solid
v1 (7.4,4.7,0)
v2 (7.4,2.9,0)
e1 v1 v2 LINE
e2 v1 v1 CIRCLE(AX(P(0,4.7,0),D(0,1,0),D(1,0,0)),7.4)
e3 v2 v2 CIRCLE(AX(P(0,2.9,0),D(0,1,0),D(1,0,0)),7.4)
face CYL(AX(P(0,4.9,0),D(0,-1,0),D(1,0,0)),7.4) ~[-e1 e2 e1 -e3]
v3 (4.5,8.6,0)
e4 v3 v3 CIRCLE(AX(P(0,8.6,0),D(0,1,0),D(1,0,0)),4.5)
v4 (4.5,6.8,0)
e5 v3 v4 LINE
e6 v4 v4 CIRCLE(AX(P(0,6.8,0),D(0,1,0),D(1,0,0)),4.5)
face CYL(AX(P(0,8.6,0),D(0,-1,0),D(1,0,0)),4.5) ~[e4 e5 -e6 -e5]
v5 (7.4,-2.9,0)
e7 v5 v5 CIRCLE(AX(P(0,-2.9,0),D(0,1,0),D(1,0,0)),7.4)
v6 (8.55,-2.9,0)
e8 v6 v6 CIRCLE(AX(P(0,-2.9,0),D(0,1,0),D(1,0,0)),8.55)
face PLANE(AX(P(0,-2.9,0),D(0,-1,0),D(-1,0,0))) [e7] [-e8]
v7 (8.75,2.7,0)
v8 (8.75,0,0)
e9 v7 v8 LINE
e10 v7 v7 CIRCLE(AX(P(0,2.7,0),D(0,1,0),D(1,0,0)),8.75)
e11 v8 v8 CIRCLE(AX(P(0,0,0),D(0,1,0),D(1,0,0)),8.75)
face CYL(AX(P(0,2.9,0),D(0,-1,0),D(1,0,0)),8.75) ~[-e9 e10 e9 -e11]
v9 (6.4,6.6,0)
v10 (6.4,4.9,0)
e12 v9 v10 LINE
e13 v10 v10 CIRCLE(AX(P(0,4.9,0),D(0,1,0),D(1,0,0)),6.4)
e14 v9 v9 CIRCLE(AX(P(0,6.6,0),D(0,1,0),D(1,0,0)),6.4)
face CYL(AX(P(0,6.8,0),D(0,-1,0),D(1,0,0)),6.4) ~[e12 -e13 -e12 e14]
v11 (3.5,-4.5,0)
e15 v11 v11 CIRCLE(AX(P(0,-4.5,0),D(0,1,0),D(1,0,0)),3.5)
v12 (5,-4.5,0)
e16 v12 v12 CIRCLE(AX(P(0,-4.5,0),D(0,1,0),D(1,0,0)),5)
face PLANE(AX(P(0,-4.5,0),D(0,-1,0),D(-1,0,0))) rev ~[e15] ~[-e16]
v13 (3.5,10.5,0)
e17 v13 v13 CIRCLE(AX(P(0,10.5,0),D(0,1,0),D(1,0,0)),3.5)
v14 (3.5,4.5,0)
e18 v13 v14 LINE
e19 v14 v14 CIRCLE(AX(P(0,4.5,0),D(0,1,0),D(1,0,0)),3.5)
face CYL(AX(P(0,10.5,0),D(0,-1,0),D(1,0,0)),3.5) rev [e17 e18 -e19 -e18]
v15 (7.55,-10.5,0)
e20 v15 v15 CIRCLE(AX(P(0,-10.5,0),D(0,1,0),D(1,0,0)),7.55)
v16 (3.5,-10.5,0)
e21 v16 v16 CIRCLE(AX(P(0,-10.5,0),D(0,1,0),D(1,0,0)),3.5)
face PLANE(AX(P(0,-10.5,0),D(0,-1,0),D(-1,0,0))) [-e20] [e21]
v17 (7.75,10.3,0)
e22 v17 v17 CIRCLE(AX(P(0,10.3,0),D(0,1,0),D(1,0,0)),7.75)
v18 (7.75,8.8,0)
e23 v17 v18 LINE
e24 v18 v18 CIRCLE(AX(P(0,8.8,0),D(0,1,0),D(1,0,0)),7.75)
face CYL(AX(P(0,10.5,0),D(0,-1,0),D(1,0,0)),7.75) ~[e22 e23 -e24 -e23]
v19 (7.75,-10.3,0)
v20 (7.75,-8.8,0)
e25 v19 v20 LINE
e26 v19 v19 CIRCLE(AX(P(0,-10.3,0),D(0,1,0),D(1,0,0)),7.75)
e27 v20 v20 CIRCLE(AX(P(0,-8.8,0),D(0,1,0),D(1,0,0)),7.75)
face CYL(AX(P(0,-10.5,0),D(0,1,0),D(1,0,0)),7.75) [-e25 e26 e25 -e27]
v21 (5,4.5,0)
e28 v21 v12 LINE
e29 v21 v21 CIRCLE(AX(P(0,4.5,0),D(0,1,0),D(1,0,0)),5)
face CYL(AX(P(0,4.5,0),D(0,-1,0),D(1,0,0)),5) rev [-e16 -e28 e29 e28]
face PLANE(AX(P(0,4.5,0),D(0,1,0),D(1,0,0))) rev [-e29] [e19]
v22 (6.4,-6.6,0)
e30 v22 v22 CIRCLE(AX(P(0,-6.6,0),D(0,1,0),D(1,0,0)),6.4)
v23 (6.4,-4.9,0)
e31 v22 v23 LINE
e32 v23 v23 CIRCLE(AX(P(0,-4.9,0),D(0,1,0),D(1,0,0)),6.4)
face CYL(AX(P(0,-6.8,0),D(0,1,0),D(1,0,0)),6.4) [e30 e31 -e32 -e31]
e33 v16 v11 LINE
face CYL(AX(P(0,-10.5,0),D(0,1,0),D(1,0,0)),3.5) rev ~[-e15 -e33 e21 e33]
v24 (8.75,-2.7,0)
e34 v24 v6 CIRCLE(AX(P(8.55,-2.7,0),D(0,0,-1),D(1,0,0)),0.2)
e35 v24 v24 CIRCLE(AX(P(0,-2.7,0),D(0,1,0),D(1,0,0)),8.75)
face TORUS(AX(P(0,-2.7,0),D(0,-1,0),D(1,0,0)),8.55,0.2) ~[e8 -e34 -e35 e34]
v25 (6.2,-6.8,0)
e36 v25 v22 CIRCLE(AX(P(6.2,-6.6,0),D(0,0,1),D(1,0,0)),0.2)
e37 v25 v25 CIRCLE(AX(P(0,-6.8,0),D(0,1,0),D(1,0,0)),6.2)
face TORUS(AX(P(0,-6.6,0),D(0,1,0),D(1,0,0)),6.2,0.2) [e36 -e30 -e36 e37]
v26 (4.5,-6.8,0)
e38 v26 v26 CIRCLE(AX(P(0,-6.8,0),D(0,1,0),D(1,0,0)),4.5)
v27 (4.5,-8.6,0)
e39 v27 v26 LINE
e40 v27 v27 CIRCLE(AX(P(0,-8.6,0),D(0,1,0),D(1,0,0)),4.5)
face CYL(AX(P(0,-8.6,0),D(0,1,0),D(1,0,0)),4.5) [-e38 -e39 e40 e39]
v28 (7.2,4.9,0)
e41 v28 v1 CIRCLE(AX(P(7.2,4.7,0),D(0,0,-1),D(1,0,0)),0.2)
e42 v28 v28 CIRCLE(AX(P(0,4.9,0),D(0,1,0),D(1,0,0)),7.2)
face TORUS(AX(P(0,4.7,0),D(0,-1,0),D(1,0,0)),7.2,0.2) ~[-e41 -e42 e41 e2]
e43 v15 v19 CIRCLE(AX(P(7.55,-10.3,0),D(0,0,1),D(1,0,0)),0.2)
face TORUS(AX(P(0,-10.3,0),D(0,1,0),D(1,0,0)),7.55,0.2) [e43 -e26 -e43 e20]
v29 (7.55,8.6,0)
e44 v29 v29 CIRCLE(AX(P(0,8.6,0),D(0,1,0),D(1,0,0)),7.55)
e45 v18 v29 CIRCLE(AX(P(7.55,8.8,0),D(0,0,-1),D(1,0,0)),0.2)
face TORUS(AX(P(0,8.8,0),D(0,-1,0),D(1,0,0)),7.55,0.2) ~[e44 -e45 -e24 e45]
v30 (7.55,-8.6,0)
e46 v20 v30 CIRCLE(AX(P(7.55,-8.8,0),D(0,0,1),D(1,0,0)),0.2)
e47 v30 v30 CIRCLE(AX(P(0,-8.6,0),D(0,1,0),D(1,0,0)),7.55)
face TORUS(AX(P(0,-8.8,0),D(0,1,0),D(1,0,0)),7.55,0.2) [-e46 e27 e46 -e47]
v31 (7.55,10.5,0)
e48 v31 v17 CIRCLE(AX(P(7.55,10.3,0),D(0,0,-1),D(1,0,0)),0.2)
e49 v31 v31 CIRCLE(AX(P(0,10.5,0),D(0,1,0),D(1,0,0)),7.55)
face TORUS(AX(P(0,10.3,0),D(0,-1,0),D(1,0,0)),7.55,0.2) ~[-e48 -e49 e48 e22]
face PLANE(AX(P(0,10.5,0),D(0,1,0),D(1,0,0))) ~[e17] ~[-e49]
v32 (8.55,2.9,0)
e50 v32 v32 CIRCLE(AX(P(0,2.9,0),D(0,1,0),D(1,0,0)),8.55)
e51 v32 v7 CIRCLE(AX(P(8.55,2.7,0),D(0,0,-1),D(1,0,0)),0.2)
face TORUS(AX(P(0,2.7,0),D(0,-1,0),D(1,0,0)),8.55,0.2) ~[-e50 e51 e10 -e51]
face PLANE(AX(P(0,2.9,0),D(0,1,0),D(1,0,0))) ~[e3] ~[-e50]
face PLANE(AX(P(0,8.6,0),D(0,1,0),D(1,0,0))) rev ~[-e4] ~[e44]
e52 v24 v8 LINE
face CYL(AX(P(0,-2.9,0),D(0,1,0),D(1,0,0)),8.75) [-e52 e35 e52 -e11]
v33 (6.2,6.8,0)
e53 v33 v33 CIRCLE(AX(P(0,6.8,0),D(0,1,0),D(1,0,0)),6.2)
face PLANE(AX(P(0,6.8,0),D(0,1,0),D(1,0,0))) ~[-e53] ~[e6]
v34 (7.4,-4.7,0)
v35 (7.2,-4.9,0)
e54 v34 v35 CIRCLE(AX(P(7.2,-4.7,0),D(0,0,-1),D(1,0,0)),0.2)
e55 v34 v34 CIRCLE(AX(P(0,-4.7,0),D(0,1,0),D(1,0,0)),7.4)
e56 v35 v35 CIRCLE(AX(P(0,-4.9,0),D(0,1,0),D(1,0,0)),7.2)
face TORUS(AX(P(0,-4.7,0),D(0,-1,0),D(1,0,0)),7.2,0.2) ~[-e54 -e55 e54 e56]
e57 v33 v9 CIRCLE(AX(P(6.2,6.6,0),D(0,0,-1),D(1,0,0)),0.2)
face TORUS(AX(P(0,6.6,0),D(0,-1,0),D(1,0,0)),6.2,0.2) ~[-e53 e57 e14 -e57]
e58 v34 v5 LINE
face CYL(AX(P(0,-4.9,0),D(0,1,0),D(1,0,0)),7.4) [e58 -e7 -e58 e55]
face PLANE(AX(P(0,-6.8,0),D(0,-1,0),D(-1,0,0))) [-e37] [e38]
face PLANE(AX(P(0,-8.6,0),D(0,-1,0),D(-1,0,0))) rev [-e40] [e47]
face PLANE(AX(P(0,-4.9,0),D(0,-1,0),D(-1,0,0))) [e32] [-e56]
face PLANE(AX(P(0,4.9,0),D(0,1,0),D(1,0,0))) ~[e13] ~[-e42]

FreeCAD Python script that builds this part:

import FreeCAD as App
import Part
import Sketcher
from FreeCAD import Vector
Q = App.Units.Quantity


def edges_at(feature, points):
    """Names of the edges that pass closest to the given points."""
    edges = feature.Shape.Edges
    near = lambda p: min(range(len(edges)), key=lambda i: edges[i].distToShape(Part.Vertex(*p))[0])
    return sorted({f"Edge{near(p) + 1}" for p in points})


def add_polygon(sketch, points):
    """Adds a closed chain of lines whose ends are joined by coincident constraints."""
    first, n = sketch.GeometryCount, len(points)
    for a, b in zip(points, points[1:] + points[:1]):
        sketch.addGeometry(Part.LineSegment(App.Vector(*a, 0), App.Vector(*b, 0)), False)
    for i in range(n):
        sketch.addConstraint(Sketcher.Constraint("Coincident", first + i, 2, first + (i + 1) % n, 1))

doc = App.newDocument("Part")
body = doc.addObject("PartDesign::Body", "Body")

# Sketch on XY plane
sketch1 = body.newObject("Sketcher::SketchObject", "Sketch")
sketch1.AttachmentSupport = (doc.getObject("XY_Plane"), [""])
sketch1.MapMode = "FlatFace"
add_polygon(sketch1, [(7.8, 10.5), (3.5, 10.5), (3.5, 4.5), (5, 4.5), (5, 0), (8.8, 0), (8.8, 2.9), (7.4, 2.9), (7.4, 4.9), (6.4, 4.9), (6.4, 6.8), (4.5, 6.8), (4.5, 8.6), (7.8, 8.6)])  # lines 0-13
sketch1.addConstraint(Sketcher.Constraint("Horizontal", 0))
sketch1.addConstraint(Sketcher.Constraint("Vertical", 1))
sketch1.addConstraint(Sketcher.Constraint("Horizontal", 2))
sketch1.addConstraint(Sketcher.Constraint("Vertical", 3))
sketch1.addConstraint(Sketcher.Constraint("Horizontal", 4))
sketch1.addConstraint(Sketcher.Constraint("Vertical", 5))
sketch1.addConstraint(Sketcher.Constraint("Horizontal", 6))
sketch1.addConstraint(Sketcher.Constraint("Vertical", 7))
sketch1.addConstraint(Sketcher.Constraint("Horizontal", 8))
sketch1.addConstraint(Sketcher.Constraint("Vertical", 9))
sketch1.addConstraint(Sketcher.Constraint("Horizontal", 10))
sketch1.addConstraint(Sketcher.Constraint("Vertical", 11))
sketch1.addConstraint(Sketcher.Constraint("Horizontal", 12))
sketch1.addConstraint(Sketcher.Constraint("Vertical", 13))
sketch1.addConstraint(Sketcher.Constraint("PointOnObject", 3, 2, -1))
sketch1.addConstraint(Sketcher.Constraint("Equal", 10, 9))
sketch1.addConstraint(Sketcher.Constraint("Equal", 9, 13))
sketch1.addConstraint(Sketcher.Constraint("DistanceY", 1, 2, 1, 1, Q("6 mm")))
sketch1.addConstraint(Sketcher.Constraint("DistanceX", 10, 2, 10, 1, Q("1.9 mm")))
sketch1.addConstraint(Sketcher.Constraint("DistanceY", 11, 1, 11, 2, Q("1.8 mm")))
sketch1.addConstraint(Sketcher.Constraint("DistanceX", 8, 2, 8, 1, Q("1 mm")))
sketch1.addConstraint(Sketcher.Constraint("DistanceY", 7, 1, 7, 2, Q("2 mm")))
sketch1.addConstraint(Sketcher.Constraint("DistanceX", 2, 1, 2, 2, Q("1.5 mm")))
sketch1.addConstraint(Sketcher.Constraint("DistanceY", 3, 2, 3, 1, Q("4.5 mm")))
sketch1.addConstraint(Sketcher.Constraint("DistanceX", -1, 1, 2, 2, Q("5 mm")))
sketch1.addConstraint(Sketcher.Constraint("DistanceX", 1, 2, 10, 2, Q("1 mm")))
sketch1.addConstraint(Sketcher.Constraint("DistanceX", 0, 2, 0, 1, Q("4.25 mm")))
sketch1.addConstraint(Sketcher.Constraint("DistanceX", 4, 1, 4, 2, Q("3.75 mm")))
revolution = body.newObject("PartDesign::Revolution", "Revolution")
revolution.Profile = sketch1
revolution.ReferenceAxis = (sketch1, ["V_Axis"])
revolution.Angle = 360
doc.recompute()

mirrored = body.newObject("PartDesign::Mirrored", "Mirrored")
mirrored.Originals = [revolution]
mirrored.MirrorPlane = (doc.getObject("XZ_Plane"), [""])
body.Tip = mirrored
doc.recompute()

fillet = body.newObject("PartDesign::Fillet", "Fillet")
fillet.Base = (mirrored, edges_at(mirrored, [
    (-8.75, 2.9, 0),
    (-7.4, 4.9, 0),
    (-6.4, 6.8, 0),
    (-7.75, 8.6, 0),
    (-7.75, 10.5, 0),
    (-8.75, -2.9, 0),
    (-7.4, -4.9, 0),
    (-6.4, -6.8, 0),
    (-7.75, -8.6, 0),
    (-7.75, -10.5, 0),
]))
fillet.Radius = 0.2

doc.recompute()
